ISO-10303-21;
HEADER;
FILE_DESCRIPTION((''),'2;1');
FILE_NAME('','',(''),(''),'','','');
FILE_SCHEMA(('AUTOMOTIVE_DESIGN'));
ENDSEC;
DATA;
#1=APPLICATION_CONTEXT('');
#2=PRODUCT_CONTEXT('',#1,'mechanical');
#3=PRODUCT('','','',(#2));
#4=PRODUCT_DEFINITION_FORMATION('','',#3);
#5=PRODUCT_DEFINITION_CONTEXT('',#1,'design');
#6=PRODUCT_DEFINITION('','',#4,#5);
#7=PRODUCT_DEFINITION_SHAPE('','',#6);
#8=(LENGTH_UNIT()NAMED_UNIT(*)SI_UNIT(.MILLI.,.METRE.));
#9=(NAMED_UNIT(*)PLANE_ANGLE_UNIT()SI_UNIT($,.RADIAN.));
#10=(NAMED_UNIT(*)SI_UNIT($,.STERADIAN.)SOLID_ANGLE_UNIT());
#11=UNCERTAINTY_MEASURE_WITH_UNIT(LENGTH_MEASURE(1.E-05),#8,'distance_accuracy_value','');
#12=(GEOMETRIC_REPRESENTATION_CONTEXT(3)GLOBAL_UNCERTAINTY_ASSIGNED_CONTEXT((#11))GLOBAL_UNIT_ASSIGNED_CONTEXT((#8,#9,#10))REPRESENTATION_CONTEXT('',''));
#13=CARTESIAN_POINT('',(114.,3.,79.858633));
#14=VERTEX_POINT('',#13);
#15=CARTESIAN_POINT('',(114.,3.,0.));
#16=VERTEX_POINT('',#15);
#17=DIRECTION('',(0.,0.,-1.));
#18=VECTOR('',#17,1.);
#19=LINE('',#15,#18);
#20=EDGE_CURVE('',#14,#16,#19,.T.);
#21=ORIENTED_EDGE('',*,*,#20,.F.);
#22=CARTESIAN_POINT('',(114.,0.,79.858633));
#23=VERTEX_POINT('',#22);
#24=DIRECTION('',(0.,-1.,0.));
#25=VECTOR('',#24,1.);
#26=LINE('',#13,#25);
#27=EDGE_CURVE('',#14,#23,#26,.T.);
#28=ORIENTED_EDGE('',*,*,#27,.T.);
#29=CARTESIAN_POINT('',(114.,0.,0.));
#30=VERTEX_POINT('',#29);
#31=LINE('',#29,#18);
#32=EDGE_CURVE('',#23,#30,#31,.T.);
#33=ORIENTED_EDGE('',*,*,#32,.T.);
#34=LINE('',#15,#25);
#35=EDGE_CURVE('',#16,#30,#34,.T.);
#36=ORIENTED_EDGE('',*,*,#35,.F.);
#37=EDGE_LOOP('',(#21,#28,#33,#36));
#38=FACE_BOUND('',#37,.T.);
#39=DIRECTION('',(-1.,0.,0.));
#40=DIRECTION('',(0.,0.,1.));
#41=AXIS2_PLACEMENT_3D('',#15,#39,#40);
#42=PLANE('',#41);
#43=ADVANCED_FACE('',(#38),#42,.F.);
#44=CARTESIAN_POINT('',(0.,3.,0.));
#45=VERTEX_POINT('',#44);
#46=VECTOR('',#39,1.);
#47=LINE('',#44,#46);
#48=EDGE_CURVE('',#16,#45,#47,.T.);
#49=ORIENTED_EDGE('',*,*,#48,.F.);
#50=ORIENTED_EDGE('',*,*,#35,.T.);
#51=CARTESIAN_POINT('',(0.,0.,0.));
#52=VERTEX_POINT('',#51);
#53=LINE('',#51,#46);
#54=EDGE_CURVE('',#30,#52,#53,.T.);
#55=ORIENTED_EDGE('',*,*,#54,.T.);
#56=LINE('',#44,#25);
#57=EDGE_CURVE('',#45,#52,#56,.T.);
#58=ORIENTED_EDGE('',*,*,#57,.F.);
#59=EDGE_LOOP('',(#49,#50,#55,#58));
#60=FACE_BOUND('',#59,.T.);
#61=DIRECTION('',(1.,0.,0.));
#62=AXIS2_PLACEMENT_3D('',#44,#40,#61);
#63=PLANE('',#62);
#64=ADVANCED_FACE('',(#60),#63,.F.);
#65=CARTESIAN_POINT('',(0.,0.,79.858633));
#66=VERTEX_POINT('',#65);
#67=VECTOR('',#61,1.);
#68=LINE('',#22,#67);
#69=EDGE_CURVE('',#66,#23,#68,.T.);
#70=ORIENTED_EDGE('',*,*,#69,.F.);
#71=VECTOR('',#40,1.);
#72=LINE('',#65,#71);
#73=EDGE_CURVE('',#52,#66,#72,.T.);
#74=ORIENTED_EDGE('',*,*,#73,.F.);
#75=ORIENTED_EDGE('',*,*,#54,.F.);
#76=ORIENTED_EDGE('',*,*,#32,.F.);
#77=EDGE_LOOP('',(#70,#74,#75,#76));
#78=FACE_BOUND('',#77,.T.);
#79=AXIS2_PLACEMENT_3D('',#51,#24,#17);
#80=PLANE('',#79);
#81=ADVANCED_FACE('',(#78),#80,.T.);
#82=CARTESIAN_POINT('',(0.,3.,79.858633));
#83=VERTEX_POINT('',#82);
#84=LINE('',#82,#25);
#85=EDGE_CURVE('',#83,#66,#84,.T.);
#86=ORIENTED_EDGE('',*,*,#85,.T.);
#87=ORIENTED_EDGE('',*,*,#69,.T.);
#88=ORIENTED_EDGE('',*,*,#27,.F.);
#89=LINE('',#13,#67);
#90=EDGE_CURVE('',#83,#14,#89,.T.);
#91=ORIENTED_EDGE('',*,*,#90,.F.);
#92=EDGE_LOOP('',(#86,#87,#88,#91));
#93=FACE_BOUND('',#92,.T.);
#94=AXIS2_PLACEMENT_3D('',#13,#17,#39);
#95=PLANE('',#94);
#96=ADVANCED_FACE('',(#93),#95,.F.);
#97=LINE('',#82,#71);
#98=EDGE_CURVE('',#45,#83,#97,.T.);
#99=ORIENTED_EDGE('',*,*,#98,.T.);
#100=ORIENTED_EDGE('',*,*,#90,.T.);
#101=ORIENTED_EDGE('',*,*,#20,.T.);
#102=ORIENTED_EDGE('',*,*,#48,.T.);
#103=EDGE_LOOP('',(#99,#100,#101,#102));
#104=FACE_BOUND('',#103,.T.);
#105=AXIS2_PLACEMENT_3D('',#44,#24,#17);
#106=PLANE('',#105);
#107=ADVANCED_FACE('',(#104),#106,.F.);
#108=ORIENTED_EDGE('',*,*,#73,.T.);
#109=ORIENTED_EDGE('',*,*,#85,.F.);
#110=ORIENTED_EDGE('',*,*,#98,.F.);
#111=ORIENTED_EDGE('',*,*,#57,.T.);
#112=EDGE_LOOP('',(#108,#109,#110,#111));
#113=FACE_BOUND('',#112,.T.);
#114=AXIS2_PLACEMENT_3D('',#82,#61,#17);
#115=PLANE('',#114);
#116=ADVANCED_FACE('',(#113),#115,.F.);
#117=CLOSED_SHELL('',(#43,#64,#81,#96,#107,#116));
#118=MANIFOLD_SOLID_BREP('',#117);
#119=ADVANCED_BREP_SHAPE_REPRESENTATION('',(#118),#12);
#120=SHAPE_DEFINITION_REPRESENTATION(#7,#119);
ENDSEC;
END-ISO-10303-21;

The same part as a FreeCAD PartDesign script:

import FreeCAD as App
import Part
import Sketcher

V = App.Vector
Q = App.Units.Quantity

doc = App.newDocument("Part")
body = doc.addObject("PartDesign::Body", "Body")

# Sketch on XZ plane
sketch1 = body.newObject("Sketcher::SketchObject", "Sketch")
sketch1.AttachmentSupport = (doc.getObject("XZ_Plane"), [""])
sketch1.MapMode = "FlatFace"
sketch1.addGeometry([
    Part.LineSegment(V(0, 0, 0), V(0, 80, 0)),
    Part.LineSegment(V(0, 80, 0), V(114, 80, 0)),
    Part.LineSegment(V(114, 80, 0), V(114, 0, 0)),
    Part.LineSegment(V(114, 0, 0), V(0, 0, 0)),
], False)
sketch1.addConstraint([
    Sketcher.Constraint("Coincident", 0, 2, 1, 1),
    Sketcher.Constraint("Coincident", 1, 2, 2, 1),
    Sketcher.Constraint("Coincident", 2, 2, 3, 1),
    Sketcher.Constraint("Coincident", 3, 2, 0, 1),
    Sketcher.Constraint("Vertical", 0),
    Sketcher.Constraint("Horizontal", 1),
    Sketcher.Constraint("Vertical", 2),
    Sketcher.Constraint("Horizontal", 3),
    Sketcher.Constraint("Coincident", 3, 2, -1, 1),
    Sketcher.Constraint("DistanceX", 1, 1, 1, 2, Q("114 mm")),
    Sketcher.Constraint("DistanceY", 0, 1, 0, 2, Q("79.858633 mm")),
])
pad1 = body.newObject("PartDesign::Pad", "Pad")
pad1.Profile = sketch1
pad1.Length = 3
pad1.Reversed = True

doc.recompute()
